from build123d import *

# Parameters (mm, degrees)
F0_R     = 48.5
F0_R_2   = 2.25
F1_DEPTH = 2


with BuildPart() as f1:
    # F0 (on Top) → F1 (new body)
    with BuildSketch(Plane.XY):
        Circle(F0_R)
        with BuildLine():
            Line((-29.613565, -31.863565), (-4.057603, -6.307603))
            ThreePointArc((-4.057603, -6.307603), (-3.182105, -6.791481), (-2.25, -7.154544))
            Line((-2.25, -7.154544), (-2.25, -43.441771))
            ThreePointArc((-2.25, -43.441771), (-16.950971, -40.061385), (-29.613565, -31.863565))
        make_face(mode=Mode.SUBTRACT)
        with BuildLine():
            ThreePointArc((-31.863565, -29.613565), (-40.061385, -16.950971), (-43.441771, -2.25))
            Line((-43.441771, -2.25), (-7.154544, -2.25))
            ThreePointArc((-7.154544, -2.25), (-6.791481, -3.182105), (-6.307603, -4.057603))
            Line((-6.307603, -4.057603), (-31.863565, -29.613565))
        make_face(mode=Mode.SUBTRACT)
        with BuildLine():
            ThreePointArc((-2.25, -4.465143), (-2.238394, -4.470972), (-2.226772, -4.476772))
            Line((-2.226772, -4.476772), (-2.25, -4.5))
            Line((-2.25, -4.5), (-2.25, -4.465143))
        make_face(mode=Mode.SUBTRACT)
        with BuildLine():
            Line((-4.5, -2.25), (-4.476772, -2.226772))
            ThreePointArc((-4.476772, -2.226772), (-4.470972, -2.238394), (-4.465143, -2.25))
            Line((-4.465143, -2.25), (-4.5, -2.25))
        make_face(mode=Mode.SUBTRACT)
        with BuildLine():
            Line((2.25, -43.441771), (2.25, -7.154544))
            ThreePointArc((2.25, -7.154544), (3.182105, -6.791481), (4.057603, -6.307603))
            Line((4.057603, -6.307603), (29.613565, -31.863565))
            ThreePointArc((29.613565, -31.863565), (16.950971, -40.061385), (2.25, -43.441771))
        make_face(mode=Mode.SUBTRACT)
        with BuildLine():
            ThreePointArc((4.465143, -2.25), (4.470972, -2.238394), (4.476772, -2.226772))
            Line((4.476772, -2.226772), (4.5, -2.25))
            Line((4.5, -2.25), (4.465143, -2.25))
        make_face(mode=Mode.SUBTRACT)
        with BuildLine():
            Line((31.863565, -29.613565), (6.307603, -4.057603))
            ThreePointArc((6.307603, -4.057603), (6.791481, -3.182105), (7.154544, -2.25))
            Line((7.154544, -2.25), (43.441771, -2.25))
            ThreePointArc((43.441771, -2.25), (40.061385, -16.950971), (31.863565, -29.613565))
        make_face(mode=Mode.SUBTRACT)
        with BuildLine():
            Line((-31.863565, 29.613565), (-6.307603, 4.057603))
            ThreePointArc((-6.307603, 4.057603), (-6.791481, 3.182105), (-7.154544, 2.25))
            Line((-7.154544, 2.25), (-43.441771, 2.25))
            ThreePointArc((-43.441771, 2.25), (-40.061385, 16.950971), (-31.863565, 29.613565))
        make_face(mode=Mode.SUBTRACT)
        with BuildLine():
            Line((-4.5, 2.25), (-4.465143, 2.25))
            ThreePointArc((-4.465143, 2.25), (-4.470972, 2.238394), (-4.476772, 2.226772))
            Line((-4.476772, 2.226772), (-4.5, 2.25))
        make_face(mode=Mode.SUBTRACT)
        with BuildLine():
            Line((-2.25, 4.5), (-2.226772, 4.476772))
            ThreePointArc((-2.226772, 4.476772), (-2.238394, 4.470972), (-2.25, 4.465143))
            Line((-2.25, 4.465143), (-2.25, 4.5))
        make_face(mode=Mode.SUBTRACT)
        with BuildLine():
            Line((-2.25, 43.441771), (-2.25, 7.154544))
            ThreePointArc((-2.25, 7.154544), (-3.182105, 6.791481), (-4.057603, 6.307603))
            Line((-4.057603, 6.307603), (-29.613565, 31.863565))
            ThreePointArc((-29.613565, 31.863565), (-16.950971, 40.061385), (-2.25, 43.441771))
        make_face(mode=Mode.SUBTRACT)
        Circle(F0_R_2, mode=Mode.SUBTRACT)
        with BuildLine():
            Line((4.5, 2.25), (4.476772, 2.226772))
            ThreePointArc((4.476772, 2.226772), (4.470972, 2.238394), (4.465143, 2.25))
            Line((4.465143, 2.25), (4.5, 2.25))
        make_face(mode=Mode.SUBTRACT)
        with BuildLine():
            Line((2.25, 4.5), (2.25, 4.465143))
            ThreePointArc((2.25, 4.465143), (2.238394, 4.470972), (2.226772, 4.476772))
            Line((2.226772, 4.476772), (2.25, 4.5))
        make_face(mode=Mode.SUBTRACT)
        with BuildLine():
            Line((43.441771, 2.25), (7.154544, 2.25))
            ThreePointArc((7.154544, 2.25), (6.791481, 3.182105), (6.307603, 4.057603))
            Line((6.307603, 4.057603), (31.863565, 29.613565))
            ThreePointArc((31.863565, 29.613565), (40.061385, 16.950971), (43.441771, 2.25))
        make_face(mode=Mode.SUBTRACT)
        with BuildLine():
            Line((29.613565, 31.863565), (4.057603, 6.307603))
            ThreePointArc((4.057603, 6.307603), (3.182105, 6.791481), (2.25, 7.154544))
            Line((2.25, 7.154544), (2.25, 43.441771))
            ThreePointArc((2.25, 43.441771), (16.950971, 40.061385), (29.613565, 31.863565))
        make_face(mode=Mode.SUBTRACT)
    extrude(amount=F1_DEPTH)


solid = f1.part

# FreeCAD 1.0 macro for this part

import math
import FreeCAD as App
import Part
import Sketcher
from FreeCAD import Vector
Q = App.Units.Quantity

doc = App.newDocument("Part")
params = doc.addObject("Spreadsheet::Sheet", "Params")
for row, (alias, value) in enumerate([
    ("sketch1_diameter", "97 mm"),
    ("sketch1_diameter2", "4.5 mm"),
    ("sketch1_radius", "43.5 mm"),
    ("pad1_length", "2 mm"),
], start=1):
    params.set(f"A{row}", alias)
    params.set(f"B{row}", "=" + value)
    params.setAlias(f"B{row}", alias)

body = doc.addObject("PartDesign::Body", "Body")

# Sketch on XY plane
sketch1 = body.newObject("Sketcher::SketchObject", "Sketch")
sketch1.AttachmentSupport = (doc.getObject("XY_Plane"), [""])
sketch1.MapMode = "FlatFace"
sketch1.addGeometry([
    Part.Circle(Vector(0, 0, 0), Vector(0, 0, 1), 48.5),  # 0
    Part.ArcOfCircle(Part.Circle(Vector(-0.000001, 0, 0), Vector(0, 0, 1), 43.5), math.radians(-132.903968), math.radians(-92.964897)),  # 1
    Part.LineSegment(Vector(-29.613565, -31.863565, 0), Vector(-4.057603, -6.307603, 0)),  # 2
    Part.ArcOfCircle(Part.Circle(Vector(-0.000024, -0.000052, 0), Vector(0, 0, 1), 7.499943), math.radians(-122.752738), math.radians(-107.457549)),  # 3
    Part.LineSegment(Vector(-2.25, -7.154544, 0), Vector(-2.25, -43.441771, 0)),  # 4
    Part.LineSegment(Vector(-6.307603, -4.057603, 0), Vector(-31.863565, -29.613565, 0)),  # 5
    Part.ArcOfCircle(Part.Circle(Vector(0, -0.000001, 0), Vector(0, 0, 1), 43.5), math.radians(-177.035103), math.radians(-137.096032)),  # 6
    Part.LineSegment(Vector(-43.441771, -2.25, 0), Vector(-7.154544, -2.25, 0)),  # 7
    Part.ArcOfCircle(Part.Circle(Vector(-0.000052, -0.000024, 0), Vector(0, 0, 1), 7.499943), math.radians(-162.542451), math.radians(-147.247262)),  # 8
    Part.LineSegment(Vector(-2.25, -4.5, 0), Vector(-2.25, -4.465143, 0)),  # 9
    Part.ArcOfCircle(Part.Circle(Vector(0.043558, 0.087044, 0), Vector(0, 0, 1), 5.097334), math.radians(-116.740636), math.radians(-116.448652)),  # 10
    Part.LineSegment(Vector(-2.226772, -4.476772, 0), Vector(-2.25, -4.5, 0)),  # 11
    Part.LineSegment(Vector(-4.465143, -2.25, 0), Vector(-4.5, -2.25, 0)),  # 12
    Part.LineSegment(Vector(-4.5, -2.25, 0), Vector(-4.476772, -2.226772, 0)),  # 13
    Part.ArcOfCircle(Part.Circle(Vector(0.087044, 0.043558, 0), Vector(0, 0, 1), 5.097334), math.radians(-153.551348), math.radians(-153.259364)),  # 14
    Part.ArcOfCircle(Part.Circle(Vector(0.000001, 0, 0), Vector(0, 0, 1), 43.5), math.radians(-87.035103), math.radians(-47.096032)),  # 15
    Part.LineSegment(Vector(2.25, -43.441771, 0), Vector(2.25, -7.154544, 0)),  # 16
    Part.ArcOfCircle(Part.Circle(Vector(0.000024, -0.000052, 0), Vector(0, 0, 1), 7.499943), math.radians(-72.542451), math.radians(-57.247262)),  # 17
    Part.LineSegment(Vector(4.057603, -6.307603, 0), Vector(29.613565, -31.863565, 0)),  # 18
    Part.LineSegment(Vector(4.5, -2.25, 0), Vector(4.465143, -2.25, 0)),  # 19
    Part.ArcOfCircle(Part.Circle(Vector(-0.087044, 0.043558, 0), Vector(0, 0, 1), 5.097334), math.radians(-26.740636), math.radians(-26.448652)),  # 20
    Part.LineSegment(Vector(4.476772, -2.226772, 0), Vector(4.5, -2.25, 0)),  # 21
    Part.ArcOfCircle(Part.Circle(Vector(0, -0.000001, 0), Vector(0, 0, 1), 43.5), math.radians(-42.903968), math.radians(-2.964897)),  # 22
    Part.LineSegment(Vector(31.863565, -29.613565, 0), Vector(6.307603, -4.057603, 0)),  # 23
    Part.ArcOfCircle(Part.Circle(Vector(0.000052, -0.000024, 0), Vector(0, 0, 1), 7.499943), math.radians(-32.752738), math.radians(-17.457549)),  # 24
    Part.LineSegment(Vector(7.154544, -2.25, 0), Vector(43.441771, -2.25, 0)),  # 25
    Part.ArcOfCircle(Part.Circle(Vector(0, 0.000001, 0), Vector(0, 0, 1), 43.5), math.radians(137.096032), math.radians(177.035103)),  # 26
    Part.LineSegment(Vector(-31.863565, 29.613565, 0), Vector(-6.307603, 4.057603, 0)),  # 27
    Part.ArcOfCircle(Part.Circle(Vector(-0.000052, 0.000024, 0), Vector(0, 0, 1), 7.499943), math.radians(147.247262), math.radians(162.542451)),  # 28
    Part.LineSegment(Vector(-7.154544, 2.25, 0), Vector(-43.441771, 2.25, 0)),  # 29
    Part.LineSegment(Vector(-4.476772, 2.226772, 0), Vector(-4.5, 2.25, 0)),  # 30
    Part.LineSegment(Vector(-4.5, 2.25, 0), Vector(-4.465143, 2.25, 0)),  # 31
    Part.ArcOfCircle(Part.Circle(Vector(0.087044, -0.043558, 0), Vector(0, 0, 1), 5.097334), math.radians(153.259364), math.radians(153.551348)),  # 32
    Part.LineSegment(Vector(-2.25, 4.465143, 0), Vector(-2.25, 4.5, 0)),  # 33
    Part.LineSegment(Vector(-2.25, 4.5, 0), Vector(-2.226772, 4.476772, 0)),  # 34
    Part.ArcOfCircle(Part.Circle(Vector(0.043558, -0.087044, 0), Vector(0, 0, 1), 5.097334), math.radians(116.448652), math.radians(116.740636)),  # 35
    Part.ArcOfCircle(Part.Circle(Vector(-0.000001, 0, 0), Vector(0, 0, 1), 43.5), math.radians(92.964897), math.radians(132.903968)),  # 36
    Part.LineSegment(Vector(-2.25, 43.441771, 0), Vector(-2.25, 7.154544, 0)),  # 37
    Part.ArcOfCircle(Part.Circle(Vector(-0.000024, 0.000052, 0), Vector(0, 0, 1), 7.499943), math.radians(107.457549), math.radians(122.752738)),  # 38
    Part.LineSegment(Vector(-4.057603, 6.307603, 0), Vector(-29.613565, 31.863565, 0)),  # 39
    Part.Circle(Vector(0, 0, 0), Vector(0, 0, 1), 2.25),  # 40
    Part.LineSegment(Vector(4.465143, 2.25, 0), Vector(4.5, 2.25, 0)),  # 41
    Part.LineSegment(Vector(4.5, 2.25, 0), Vector(4.476772, 2.226772, 0)),  # 42
    Part.ArcOfCircle(Part.Circle(Vector(-0.087044, -0.043558, 0), Vector(0, 0, 1), 5.097334), math.radians(26.448652), math.radians(26.740636)),  # 43
    Part.LineSegment(Vector(2.226772, 4.476772, 0), Vector(2.25, 4.5, 0)),  # 44
    Part.LineSegment(Vector(2.25, 4.5, 0), Vector(2.25, 4.465143, 0)),  # 45
    Part.ArcOfCircle(Part.Circle(Vector(-0.043558, -0.087044, 0), Vector(0, 0, 1), 5.097334), math.radians(63.259364), math.radians(63.551348)),  # 46
    Part.ArcOfCircle(Part.Circle(Vector(0, 0.000001, 0), Vector(0, 0, 1), 43.5), math.radians(2.964897), math.radians(42.903968)),  # 47
    Part.LineSegment(Vector(43.441771, 2.25, 0), Vector(7.154544, 2.25, 0)),  # 48
    Part.ArcOfCircle(Part.Circle(Vector(0.000052, 0.000024, 0), Vector(0, 0, 1), 7.499943), math.radians(17.457549), math.radians(32.752738)),  # 49
    Part.LineSegment(Vector(6.307603, 4.057603, 0), Vector(31.863565, 29.613565, 0)),  # 50
    Part.ArcOfCircle(Part.Circle(Vector(0.000001, 0, 0), Vector(0, 0, 1), 43.5), math.radians(47.096032), math.radians(87.035103)),  # 51
    Part.LineSegment(Vector(29.613565, 31.863565, 0), Vector(4.057603, 6.307603, 0)),  # 52
    Part.ArcOfCircle(Part.Circle(Vector(0.000024, 0.000052, 0), Vector(0, 0, 1), 7.499943), math.radians(57.247262), math.radians(72.542451)),  # 53
    Part.LineSegment(Vector(2.25, 7.154544, 0), Vector(2.25, 43.441771, 0)),  # 54
], False)
sketch1.addConstraint([
    Sketcher.Constraint("Coincident", 1, 1, 2, 1),
    Sketcher.Constraint("Coincident", 2, 2, 3, 1),
    Sketcher.Constraint("Coincident", 3, 2, 4, 1),
    Sketcher.Constraint("Coincident", 4, 2, 1, 2),
    Sketcher.Constraint("Coincident", 5, 2, 6, 2),
    Sketcher.Constraint("Coincident", 6, 1, 7, 1),
    Sketcher.Constraint("Coincident", 7, 2, 8, 1),
    Sketcher.Constraint("Coincident", 8, 2, 5, 1),
    Sketcher.Constraint("Coincident", 9, 2, 10, 1),
    Sketcher.Constraint("Coincident", 10, 2, 11, 1),
    Sketcher.Constraint("Coincident", 11, 2, 9, 1),
    Sketcher.Constraint("Coincident", 12, 2, 13, 1),
    Sketcher.Constraint("Coincident", 13, 2, 14, 1),
    Sketcher.Constraint("Coincident", 14, 2, 12, 1),
    Sketcher.Constraint("Coincident", 15, 1, 16, 1),
    Sketcher.Constraint("Coincident", 16, 2, 17, 1),
    Sketcher.Constraint("Coincident", 17, 2, 18, 1),
    Sketcher.Constraint("Coincident", 18, 2, 15, 2),
    Sketcher.Constraint("Coincident", 19, 2, 20, 1),
    Sketcher.Constraint("Coincident", 20, 2, 21, 1),
    Sketcher.Constraint("Coincident", 21, 2, 19, 1),
    Sketcher.Constraint("Coincident", 22, 1, 23, 1),
    Sketcher.Constraint("Coincident", 23, 2, 24, 1),
    Sketcher.Constraint("Coincident", 24, 2, 25, 1),
    Sketcher.Constraint("Coincident", 25, 2, 22, 2),
    Sketcher.Constraint("Coincident", 26, 1, 27, 1),
    Sketcher.Constraint("Coincident", 27, 2, 28, 1),
    Sketcher.Constraint("Coincident", 28, 2, 29, 1),
    Sketcher.Constraint("Coincident", 29, 2, 26, 2),
    Sketcher.Constraint("Coincident", 30, 2, 31, 1),
    Sketcher.Constraint("Coincident", 31, 2, 32, 1),
    Sketcher.Constraint("Coincident", 32, 2, 30, 1),
    Sketcher.Constraint("Coincident", 33, 2, 34, 1),
    Sketcher.Constraint("Coincident", 34, 2, 35, 1),
    Sketcher.Constraint("Coincident", 35, 2, 33, 1),
    Sketcher.Constraint("Coincident", 36, 1, 37, 1),
    Sketcher.Constraint("Coincident", 37, 2, 38, 1),
    Sketcher.Constraint("Coincident", 38, 2, 39, 1),
    Sketcher.Constraint("Coincident", 39, 2, 36, 2),
    Sketcher.Constraint("Coincident", 41, 2, 42, 1),
    Sketcher.Constraint("Coincident", 42, 2, 43, 1),
    Sketcher.Constraint("Coincident", 43, 2, 41, 1),
    Sketcher.Constraint("Coincident", 44, 2, 45, 1),
    Sketcher.Constraint("Coincident", 45, 2, 46, 1),
    Sketcher.Constraint("Coincident", 46, 2, 44, 1),
    Sketcher.Constraint("Coincident", 47, 1, 48, 1),
    Sketcher.Constraint("Coincident", 48, 2, 49, 1),
    Sketcher.Constraint("Coincident", 49, 2, 50, 1),
    Sketcher.Constraint("Coincident", 50, 2, 47, 2),
    Sketcher.Constraint("Coincident", 51, 1, 52, 1),
    Sketcher.Constraint("Coincident", 52, 2, 53, 1),
    Sketcher.Constraint("Coincident", 53, 2, 54, 1),
    Sketcher.Constraint("Coincident", 54, 2, 51, 2),
    Sketcher.Constraint("Vertical", 4),
    Sketcher.Constraint("Horizontal", 7),
    Sketcher.Constraint("Vertical", 9),
    Sketcher.Constraint("Horizontal", 12),
    Sketcher.Constraint("Vertical", 16),
    Sketcher.Constraint("Horizontal", 19),
    Sketcher.Constraint("Horizontal", 25),
    Sketcher.Constraint("Horizontal", 29),
    Sketcher.Constraint("Horizontal", 31),
    Sketcher.Constraint("Vertical", 33),
    Sketcher.Constraint("Vertical", 37),
    Sketcher.Constraint("Horizontal", 41),
    Sketcher.Constraint("Vertical", 45),
    Sketcher.Constraint("Horizontal", 48),
    Sketcher.Constraint("Vertical", 54),
    Sketcher.Constraint("Coincident", 0, 3, -1, 1),
    Sketcher.Constraint("Coincident", 1, 3, -1, 1),
    Sketcher.Constraint("Coincident", 6, 3, -1, 1),
    Sketcher.Constraint("Coincident", 15, 3, -1, 1),
    Sketcher.Constraint("Coincident", 22, 3, -1, 1),
    Sketcher.Constraint("Coincident", 26, 3, -1, 1),
    Sketcher.Constraint("Coincident", 36, 3, -1, 1),
    Sketcher.Constraint("Coincident", 40, 3, -1, 1),
    Sketcher.Constraint("Coincident", 47, 3, -1, 1),
    Sketcher.Constraint("Coincident", 51, 3, -1, 1),
    Sketcher.Constraint("Equal", 1, 6),
    Sketcher.Constraint("Equal", 3, 8),
    Sketcher.Constraint("Equal", 10, 14),
    Sketcher.Constraint("Equal", 6, 15),
    Sketcher.Constraint("Equal", 8, 17),
    Sketcher.Constraint("Equal", 14, 20),
    Sketcher.Constraint("Equal", 15, 22),
    Sketcher.Constraint("Equal", 17, 24),
    Sketcher.Constraint("Equal", 22, 26),
    Sketcher.Constraint("Equal", 24, 28),
    Sketcher.Constraint("Equal", 20, 32),
    Sketcher.Constraint("Equal", 32, 35),
    Sketcher.Constraint("Equal", 26, 36),
    Sketcher.Constraint("Equal", 28, 38),
    Sketcher.Constraint("Equal", 35, 43),
    Sketcher.Constraint("Equal", 43, 46),
    Sketcher.Constraint("Equal", 36, 47),
    Sketcher.Constraint("Equal", 38, 49),
    Sketcher.Constraint("Equal", 47, 51),
    Sketcher.Constraint("Equal", 49, 53),
    Sketcher.Constraint("Symmetric", 24, 3, 28, 3, -1, 1),
    Sketcher.Constraint("Symmetric", 20, 3, 32, 3, -1, 1),
    Sketcher.Constraint("Symmetric", 17, 3, 38, 3, -1, 1),
    Sketcher.Constraint("Symmetric", 14, 3, 43, 3, -1, 1),
    Sketcher.Constraint("Symmetric", 10, 3, 46, 3, -1, 1),
    Sketcher.Constraint("Symmetric", 8, 3, 49, 3, -1, 1),
    Sketcher.Constraint("Symmetric", 3, 3, 53, 3, -1, 1),
    Sketcher.Constraint("Symmetric", 21, 2, 30, 2, -1, 1),
    Sketcher.Constraint("Symmetric", 12, 2, 41, 2, -1, 1),
    Sketcher.Constraint("Symmetric", 11, 2, 44, 2, -1, 1),
    Sketcher.Constraint("Symmetric", 3, 3, 17, 3, -2),
    Sketcher.Constraint("Symmetric", 14, 3, 20, 3, -2),
    Sketcher.Constraint("Symmetric", 8, 3, 24, 3, -2),
    Sketcher.Constraint("Symmetric", 35, 3, 46, 3, -2),
    Sketcher.Constraint("Symmetric", 12, 2, 21, 2, -2),
    Sketcher.Constraint("Symmetric", 33, 2, 44, 2, -2),
    Sketcher.Constraint("Parallel", 2, 5),
    Sketcher.Constraint("Parallel", 5, 11),
    Sketcher.Constraint("Parallel", 11, 13),
    Sketcher.Constraint("Perpendicular", 5, 18),
    Sketcher.Constraint("Parallel", 18, 21),
    Sketcher.Constraint("Parallel", 18, 23),
    Sketcher.Constraint("Parallel", 23, 27),
    Sketcher.Constraint("Parallel", 27, 30),
    Sketcher.Constraint("Parallel", 30, 34),
    Sketcher.Constraint("Parallel", 27, 39),
    Sketcher.Constraint("Perpendicular", 39, 42),
    Sketcher.Constraint("Parallel", 42, 44),
    Sketcher.Constraint("Perpendicular", 39, 50),
    Sketcher.Constraint("Parallel", 50, 52),
    Sketcher.Constraint("Horizontal", 7, 2, 12, 2),
    Sketcher.Constraint("Horizontal", 4, 2, 15, 1),
    Sketcher.Constraint("Horizontal", 2, 2, 17, 2),
    Sketcher.Constraint("Horizontal", 1, 1, 18, 2),
    Sketcher.Constraint("Horizontal", 5, 2, 22, 1),
    Sketcher.Constraint("Horizontal", 21, 2, 24, 2),
    Sketcher.Constraint("Horizontal", 29, 2, 30, 2),
    Sketcher.Constraint("Horizontal", 43, 2, 47, 1),
    Sketcher.Constraint("Horizontal", 27, 2, 49, 2),
    Sketcher.Constraint("Horizontal", 39, 2, 51, 1),
    Sketcher.Constraint("Horizontal", 37, 2, 53, 2),
    Sketcher.Constraint("Vertical", 4, 2, 9, 2),
    Sketcher.Constraint("Vertical", 5, 2, 26, 1),
    Sketcher.Constraint("Vertical", 35, 2, 36, 1),
    Sketcher.Constraint("Vertical", 2, 2, 38, 2),
    Sketcher.Constraint("Equal", 48, 4),
    Sketcher.Constraint("Equal", 41, 9),
    Sketcher.Constraint("Equal", 2, 5),
    Sketcher.Constraint("Equal", 11, 13),
    Sketcher.Constraint("Diameter", 0, Q("97 mm")),
    Sketcher.Constraint("Diameter", 40, Q("4.5 mm")),
    Sketcher.Constraint("Radius", 1, Q("43.5 mm")),
    Sketcher.Constraint("DistanceY", 11, 2, -1, 1, Q("4.5 mm")),
    Sketcher.Constraint("DistanceX", 12, 2, -1, 1, Q("4.5 mm")),
    Sketcher.Constraint("DistanceX", 3, 2, -1, 1, Q("2.25 mm")),
    Sketcher.Constraint("DistanceY", 6, 1, -1, 1, Q("2.25 mm")),
    Sketcher.Constraint("Radius", 3, Q("7.499943 mm")),
    Sketcher.Constraint("Radius", 10, Q("5.097334 mm")),
    Sketcher.Constraint("Distance", 2, Q("36.141588 mm")),
    Sketcher.Constraint("Distance", 11, Q("0.032849 mm")),
    Sketcher.Constraint("DistanceX", 7, 1, 7, 2, Q("36.287227 mm")),
    Sketcher.Constraint("DistanceX", -1, 1, 10, 3, Q("0.043558 mm")),
    Sketcher.Constraint("DistanceX", 1, 1, -1, 1, Q("29.613565 mm")),
    Sketcher.Constraint("DistanceX", 5, 2, -1, 1, Q("31.863565 mm")),
])
sketch1.setExpression("Constraints[147]", "Params.sketch1_diameter")
sketch1.setExpression("Constraints[148]", "Params.sketch1_diameter2")
sketch1.setExpression("Constraints[149]", "Params.sketch1_radius")
pad1 = body.newObject("PartDesign::Pad", "Pad")
pad1.Profile = sketch1
pad1.setExpression("Length", "Params.pad1_length")

doc.recompute()
